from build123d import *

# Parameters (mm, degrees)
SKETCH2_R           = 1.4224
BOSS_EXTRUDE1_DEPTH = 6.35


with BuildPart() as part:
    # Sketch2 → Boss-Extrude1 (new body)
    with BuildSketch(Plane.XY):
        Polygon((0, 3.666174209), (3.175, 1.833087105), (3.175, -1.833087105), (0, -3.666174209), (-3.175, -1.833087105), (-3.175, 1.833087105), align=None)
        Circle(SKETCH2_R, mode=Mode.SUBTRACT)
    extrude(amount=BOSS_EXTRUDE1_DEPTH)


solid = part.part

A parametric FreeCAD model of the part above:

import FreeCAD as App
import Part
import Sketcher
Q = App.Units.Quantity


def add_polygon(sketch, points):
    """Adds a closed chain of lines whose ends are joined by coincident constraints."""
    first, n = sketch.GeometryCount, len(points)
    for a, b in zip(points, points[1:] + points[:1]):
        sketch.addGeometry(Part.LineSegment(App.Vector(*a, 0), App.Vector(*b, 0)), False)
    for i in range(n):
        sketch.addConstraint(Sketcher.Constraint("Coincident", first + i, 2, first + (i + 1) % n, 1))

doc = App.newDocument("Part")
body = doc.addObject("PartDesign::Body", "Body")

sketch1 = doc.addObject("Sketcher::SketchObject", "Sketch")
body.addObject(sketch1)
sketch1.AttachmentSupport = (doc.XY_Plane, [""])
sketch1.MapMode = "FlatFace"
add_polygon(sketch1, [(3.175, 1.833087), (0, 3.666174), (-3.175, 1.833087), (-3.175, -1.833087), (0, -3.666174), (3.175, -1.833087)])
sketch1.addGeometry(Part.Circle(App.Vector(0, 0, 0), App.Vector(0, 0, 1), 1.4224), False)
sketch1.addConstraint([
    Sketcher.Constraint("Vertical", 2),
    Sketcher.Constraint("Vertical", 5),
    Sketcher.Constraint("Coincident", 6, 3, -1, 1),
    Sketcher.Constraint("Symmetric", 0, 2, 3, 2, -1, 1),
    Sketcher.Constraint("Symmetric", 1, 2, 4, 2, -1, 1),
    Sketcher.Constraint("PointOnObject", 0, 2, -2),
    Sketcher.Constraint("Parallel", 0, 3),
    Sketcher.Constraint("Horizontal", 2, 2, 4, 2),
    Sketcher.Constraint("Diameter", 6, Q("0.112 in")),
    Sketcher.Constraint("Angle", 0, Q("150 deg")),
    Sketcher.Constraint("DistanceX", 2, 2, 4, 2, Q("0.25 in")),
    Sketcher.Constraint("DistanceY", 2, 2, 2, 1, Q("3.666174 mm")),
])
pad1 = doc.addObject("PartDesign::Pad", "Pad")
body.addObject(pad1)
pad1.Profile = sketch1
pad1.Length = Q("0.25 in")

doc.recompute()
